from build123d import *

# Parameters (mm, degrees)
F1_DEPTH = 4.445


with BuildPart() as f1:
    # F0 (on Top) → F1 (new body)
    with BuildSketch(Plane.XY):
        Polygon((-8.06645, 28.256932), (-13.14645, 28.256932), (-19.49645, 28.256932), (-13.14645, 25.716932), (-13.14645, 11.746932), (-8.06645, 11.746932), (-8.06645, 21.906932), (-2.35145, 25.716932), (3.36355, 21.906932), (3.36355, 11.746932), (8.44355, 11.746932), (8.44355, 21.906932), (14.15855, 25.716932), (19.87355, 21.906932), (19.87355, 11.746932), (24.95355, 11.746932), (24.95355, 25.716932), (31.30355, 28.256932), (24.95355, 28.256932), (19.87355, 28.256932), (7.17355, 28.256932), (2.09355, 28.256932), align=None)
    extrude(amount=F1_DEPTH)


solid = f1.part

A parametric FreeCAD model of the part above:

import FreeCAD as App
import Part
import Sketcher
from FreeCAD import Vector
Q = App.Units.Quantity

doc = App.newDocument("Part")
body = doc.addObject("PartDesign::Body", "Body")

# Sketch on XY plane
sketch1 = body.newObject("Sketcher::SketchObject", "Sketch")
sketch1.AttachmentSupport = (doc.getObject("XY_Plane"), [""])
sketch1.MapMode = "FlatFace"
sketch1.addGeometry(Part.LineSegment(Vector(-19.49645, 28.256932, 0), Vector(-13.14645, 25.716932, 0)), False)
sketch1.addGeometry(Part.LineSegment(Vector(-13.14645, 25.716932, 0), Vector(-13.14645, 11.746932, 0)), False)
sketch1.addGeometry(Part.LineSegment(Vector(-13.14645, 11.746932, 0), Vector(-8.06645, 11.746932, 0)), False)
sketch1.addGeometry(Part.LineSegment(Vector(-8.06645, 11.746932, 0), Vector(-8.06645, 21.906932, 0)), False)
sketch1.addGeometry(Part.LineSegment(Vector(-8.06645, 21.906932, 0), Vector(-2.35145, 25.716932, 0)), False)
sketch1.addGeometry(Part.LineSegment(Vector(-2.35145, 25.716932, 0), Vector(3.36355, 21.906932, 0)), False)
sketch1.addGeometry(Part.LineSegment(Vector(3.36355, 21.906932, 0), Vector(3.36355, 11.746932, 0)), False)
sketch1.addGeometry(Part.LineSegment(Vector(3.36355, 11.746932, 0), Vector(8.44355, 11.746932, 0)), False)
sketch1.addGeometry(Part.LineSegment(Vector(8.44355, 11.746932, 0), Vector(8.44355, 21.906932, 0)), False)
sketch1.addGeometry(Part.LineSegment(Vector(8.44355, 21.906932, 0), Vector(14.15855, 25.716932, 0)), False)
sketch1.addGeometry(Part.LineSegment(Vector(14.15855, 25.716932, 0), Vector(19.87355, 21.906932, 0)), False)
sketch1.addGeometry(Part.LineSegment(Vector(19.87355, 21.906932, 0), Vector(19.87355, 11.746932, 0)), False)
sketch1.addGeometry(Part.LineSegment(Vector(19.87355, 11.746932, 0), Vector(24.95355, 11.746932, 0)), False)
sketch1.addGeometry(Part.LineSegment(Vector(24.95355, 11.746932, 0), Vector(24.95355, 25.716932, 0)), False)
sketch1.addGeometry(Part.LineSegment(Vector(24.95355, 25.716932, 0), Vector(31.30355, 28.256932, 0)), False)
sketch1.addGeometry(Part.LineSegment(Vector(31.30355, 28.256932, 0), Vector(-19.49645, 28.256932, 0)), False)
sketch1.addConstraint(Sketcher.Constraint("Coincident", 0, 2, 1, 1))
sketch1.addConstraint(Sketcher.Constraint("Coincident", 1, 2, 2, 1))
sketch1.addConstraint(Sketcher.Constraint("Coincident", 2, 2, 3, 1))
sketch1.addConstraint(Sketcher.Constraint("Coincident", 3, 2, 4, 1))
sketch1.addConstraint(Sketcher.Constraint("Coincident", 4, 2, 5, 1))
sketch1.addConstraint(Sketcher.Constraint("Coincident", 5, 2, 6, 1))
sketch1.addConstraint(Sketcher.Constraint("Coincident", 6, 2, 7, 1))
sketch1.addConstraint(Sketcher.Constraint("Coincident", 7, 2, 8, 1))
sketch1.addConstraint(Sketcher.Constraint("Coincident", 8, 2, 9, 1))
sketch1.addConstraint(Sketcher.Constraint("Coincident", 9, 2, 10, 1))
sketch1.addConstraint(Sketcher.Constraint("Coincident", 10, 2, 11, 1))
sketch1.addConstraint(Sketcher.Constraint("Coincident", 11, 2, 12, 1))
sketch1.addConstraint(Sketcher.Constraint("Coincident", 12, 2, 13, 1))
sketch1.addConstraint(Sketcher.Constraint("Coincident", 13, 2, 14, 1))
sketch1.addConstraint(Sketcher.Constraint("Coincident", 14, 2, 15, 1))
sketch1.addConstraint(Sketcher.Constraint("Coincident", 15, 2, 0, 1))
sketch1.addConstraint(Sketcher.Constraint("Vertical", 1))
sketch1.addConstraint(Sketcher.Constraint("Horizontal", 2))
sketch1.addConstraint(Sketcher.Constraint("Vertical", 3))
sketch1.addConstraint(Sketcher.Constraint("Vertical", 6))
sketch1.addConstraint(Sketcher.Constraint("Horizontal", 7))
sketch1.addConstraint(Sketcher.Constraint("Vertical", 8))
sketch1.addConstraint(Sketcher.Constraint("Vertical", 11))
sketch1.addConstraint(Sketcher.Constraint("Horizontal", 12))
sketch1.addConstraint(Sketcher.Constraint("Vertical", 13))
sketch1.addConstraint(Sketcher.Constraint("Horizontal", 15))
sketch1.addConstraint(Sketcher.Constraint("Parallel", 4, 9))
sketch1.addConstraint(Sketcher.Constraint("Parallel", 5, 10))
sketch1.addConstraint(Sketcher.Constraint("Horizontal", 0, 2, 4, 2))
sketch1.addConstraint(Sketcher.Constraint("Horizontal", 3, 2, 5, 2))
sketch1.addConstraint(Sketcher.Constraint("Horizontal", 2, 2, 6, 2))
sketch1.addConstraint(Sketcher.Constraint("Horizontal", 5, 2, 8, 2))
sketch1.addConstraint(Sketcher.Constraint("Horizontal", 4, 2, 9, 2))
sketch1.addConstraint(Sketcher.Constraint("Horizontal", 8, 2, 10, 2))
sketch1.addConstraint(Sketcher.Constraint("Horizontal", 7, 2, 11, 2))
sketch1.addConstraint(Sketcher.Constraint("Horizontal", 9, 2, 13, 2))
sketch1.addConstraint(Sketcher.Constraint("Equal", 2, 7))
sketch1.addConstraint(Sketcher.Constraint("Equal", 7, 12))
sketch1.addConstraint(Sketcher.Constraint("Equal", 4, 5))
sketch1.addConstraint(Sketcher.Constraint("Equal", 0, 14))
sketch1.addConstraint(Sketcher.Constraint("DistanceX", 15, 2, 15, 1, Q("2 in")))
sketch1.addConstraint(Sketcher.Constraint("DistanceX", 2, 1, 2, 2, Q("0.2 in")))
sketch1.addConstraint(Sketcher.Constraint("DistanceY", 3, 1, 3, 2, Q("0.4 in")))
sketch1.addConstraint(Sketcher.Constraint("DistanceY", 1, 2, 1, 1, Q("0.55 in")))
sketch1.addConstraint(Sketcher.Constraint("DistanceY", 13, 2, 14, 2, Q("0.1 in")))
sketch1.addConstraint(Sketcher.Constraint("DistanceX", 3, 2, 5, 2, Q("0.45 in")))
sketch1.addConstraint(Sketcher.Constraint("DistanceX", 0, 2, -1, 1, Q("13.14645 mm")))
sketch1.addConstraint(Sketcher.Constraint("DistanceY", -1, 1, 0, 2, Q("25.716932 mm")))
pad1 = body.newObject("PartDesign::Pad", "Pad")
pad1.Profile = sketch1
pad1.Length = Q("0.175 in")

doc.recompute()
